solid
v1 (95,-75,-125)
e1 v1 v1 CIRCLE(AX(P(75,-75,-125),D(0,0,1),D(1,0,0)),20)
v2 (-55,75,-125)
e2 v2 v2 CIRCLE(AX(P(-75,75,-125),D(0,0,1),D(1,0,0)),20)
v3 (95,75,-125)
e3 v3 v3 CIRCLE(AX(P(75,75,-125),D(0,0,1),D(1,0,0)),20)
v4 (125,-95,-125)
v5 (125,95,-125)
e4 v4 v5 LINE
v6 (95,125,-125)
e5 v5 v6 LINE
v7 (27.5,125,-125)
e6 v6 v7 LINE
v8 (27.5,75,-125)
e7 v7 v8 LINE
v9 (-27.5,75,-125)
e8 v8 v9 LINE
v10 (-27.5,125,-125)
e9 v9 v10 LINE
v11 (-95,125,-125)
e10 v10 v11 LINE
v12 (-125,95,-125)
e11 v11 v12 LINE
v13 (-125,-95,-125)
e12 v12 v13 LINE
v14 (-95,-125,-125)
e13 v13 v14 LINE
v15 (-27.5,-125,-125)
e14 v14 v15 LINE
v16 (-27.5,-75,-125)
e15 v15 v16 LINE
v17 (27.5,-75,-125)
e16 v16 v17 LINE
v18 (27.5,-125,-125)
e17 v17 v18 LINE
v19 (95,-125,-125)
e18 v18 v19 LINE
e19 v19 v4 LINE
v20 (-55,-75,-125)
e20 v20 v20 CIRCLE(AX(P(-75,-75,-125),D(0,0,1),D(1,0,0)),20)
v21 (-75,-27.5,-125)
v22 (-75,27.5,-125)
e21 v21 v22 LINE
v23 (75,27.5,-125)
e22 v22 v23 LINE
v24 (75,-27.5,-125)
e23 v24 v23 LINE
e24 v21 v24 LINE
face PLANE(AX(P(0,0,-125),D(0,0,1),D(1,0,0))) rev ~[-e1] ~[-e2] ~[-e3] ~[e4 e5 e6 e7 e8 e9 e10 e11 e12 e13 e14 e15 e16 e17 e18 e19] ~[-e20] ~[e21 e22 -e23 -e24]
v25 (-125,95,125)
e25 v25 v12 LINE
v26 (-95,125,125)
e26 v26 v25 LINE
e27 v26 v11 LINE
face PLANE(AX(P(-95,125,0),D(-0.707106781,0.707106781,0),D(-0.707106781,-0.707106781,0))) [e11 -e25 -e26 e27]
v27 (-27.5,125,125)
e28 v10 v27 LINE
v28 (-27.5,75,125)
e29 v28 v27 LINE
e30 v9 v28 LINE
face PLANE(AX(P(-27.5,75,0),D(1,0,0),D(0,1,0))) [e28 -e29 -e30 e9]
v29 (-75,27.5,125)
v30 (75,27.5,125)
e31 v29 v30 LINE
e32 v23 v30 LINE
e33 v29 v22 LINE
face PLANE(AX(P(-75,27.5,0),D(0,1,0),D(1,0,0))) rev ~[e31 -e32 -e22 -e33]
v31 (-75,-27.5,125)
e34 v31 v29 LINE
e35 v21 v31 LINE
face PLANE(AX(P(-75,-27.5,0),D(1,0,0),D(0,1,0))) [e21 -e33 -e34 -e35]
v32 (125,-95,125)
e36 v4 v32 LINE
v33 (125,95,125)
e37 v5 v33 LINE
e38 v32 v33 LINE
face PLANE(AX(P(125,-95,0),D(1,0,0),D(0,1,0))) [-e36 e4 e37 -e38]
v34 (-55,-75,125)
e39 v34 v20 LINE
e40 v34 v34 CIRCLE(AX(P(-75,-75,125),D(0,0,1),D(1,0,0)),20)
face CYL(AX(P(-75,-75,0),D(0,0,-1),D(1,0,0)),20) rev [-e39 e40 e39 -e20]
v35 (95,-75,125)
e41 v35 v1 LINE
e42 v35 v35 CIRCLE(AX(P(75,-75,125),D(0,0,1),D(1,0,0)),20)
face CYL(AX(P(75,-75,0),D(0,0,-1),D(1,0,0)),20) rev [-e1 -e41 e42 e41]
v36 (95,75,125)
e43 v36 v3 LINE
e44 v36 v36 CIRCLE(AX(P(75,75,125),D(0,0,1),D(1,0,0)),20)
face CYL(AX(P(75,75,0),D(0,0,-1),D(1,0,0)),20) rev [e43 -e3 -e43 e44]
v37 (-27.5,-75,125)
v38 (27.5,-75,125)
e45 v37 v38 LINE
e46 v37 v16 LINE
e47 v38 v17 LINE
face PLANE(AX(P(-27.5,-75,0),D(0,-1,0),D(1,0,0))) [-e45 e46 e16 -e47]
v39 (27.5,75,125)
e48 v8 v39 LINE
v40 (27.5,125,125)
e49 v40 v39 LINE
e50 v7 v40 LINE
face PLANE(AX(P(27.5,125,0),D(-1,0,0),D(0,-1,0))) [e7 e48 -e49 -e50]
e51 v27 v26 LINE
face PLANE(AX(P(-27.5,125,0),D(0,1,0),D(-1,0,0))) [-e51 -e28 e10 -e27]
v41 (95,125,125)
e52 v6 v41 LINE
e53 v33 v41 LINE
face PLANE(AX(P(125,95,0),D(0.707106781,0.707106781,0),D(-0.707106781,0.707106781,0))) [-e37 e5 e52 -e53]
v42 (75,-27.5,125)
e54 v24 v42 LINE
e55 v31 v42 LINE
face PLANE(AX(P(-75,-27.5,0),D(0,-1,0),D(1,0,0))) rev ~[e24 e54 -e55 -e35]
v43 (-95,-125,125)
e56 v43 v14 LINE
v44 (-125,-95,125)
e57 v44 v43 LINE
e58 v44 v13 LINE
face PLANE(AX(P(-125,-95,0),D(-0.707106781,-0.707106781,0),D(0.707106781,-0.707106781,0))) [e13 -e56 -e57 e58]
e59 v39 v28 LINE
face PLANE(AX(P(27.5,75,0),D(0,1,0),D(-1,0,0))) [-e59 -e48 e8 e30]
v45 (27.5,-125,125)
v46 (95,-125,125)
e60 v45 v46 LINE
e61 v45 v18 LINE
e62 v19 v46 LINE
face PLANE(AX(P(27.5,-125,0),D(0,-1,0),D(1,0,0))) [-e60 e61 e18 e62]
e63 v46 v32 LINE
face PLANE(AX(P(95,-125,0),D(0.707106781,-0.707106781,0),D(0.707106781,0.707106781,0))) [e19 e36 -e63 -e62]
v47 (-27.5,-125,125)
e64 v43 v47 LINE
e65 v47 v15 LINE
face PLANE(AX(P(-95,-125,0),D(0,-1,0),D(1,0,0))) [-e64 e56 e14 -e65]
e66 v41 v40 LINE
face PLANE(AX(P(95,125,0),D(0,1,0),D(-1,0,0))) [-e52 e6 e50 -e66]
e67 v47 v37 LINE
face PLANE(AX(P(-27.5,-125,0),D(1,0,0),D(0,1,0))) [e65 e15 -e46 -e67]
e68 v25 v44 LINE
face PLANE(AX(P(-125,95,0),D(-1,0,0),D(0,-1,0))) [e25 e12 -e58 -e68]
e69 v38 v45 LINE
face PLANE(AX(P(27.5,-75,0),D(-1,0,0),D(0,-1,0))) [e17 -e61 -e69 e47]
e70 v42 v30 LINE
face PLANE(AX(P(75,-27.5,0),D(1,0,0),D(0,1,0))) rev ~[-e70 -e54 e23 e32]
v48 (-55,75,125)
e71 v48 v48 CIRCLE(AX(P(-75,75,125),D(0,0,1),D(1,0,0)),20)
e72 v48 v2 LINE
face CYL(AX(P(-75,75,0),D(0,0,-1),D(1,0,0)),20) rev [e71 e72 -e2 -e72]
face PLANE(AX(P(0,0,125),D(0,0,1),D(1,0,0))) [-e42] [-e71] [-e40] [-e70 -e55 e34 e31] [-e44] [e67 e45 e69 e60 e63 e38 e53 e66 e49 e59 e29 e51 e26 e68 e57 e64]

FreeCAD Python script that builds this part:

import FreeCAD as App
import Part
import Sketcher

V = App.Vector

doc = App.newDocument("Part")
body = doc.addObject("PartDesign::Body", "Body")

# Sketch on XY plane
sketch1 = body.newObject("Sketcher::SketchObject", "Sketch")
sketch1.AttachmentSupport = (doc.getObject("XY_Plane"), [""])
sketch1.MapMode = "FlatFace"
sketch1.addGeometry([
    Part.LineSegment(V(28, -125, 0), V(95, -125, 0)),  # 0
    Part.LineSegment(V(95, -125, 0), V(125, -95, 0)),  # 1
    Part.LineSegment(V(125, -95, 0), V(125, 95, 0)),  # 2
    Part.LineSegment(V(125, 95, 0), V(95, 125, 0)),  # 3
    Part.LineSegment(V(95, 125, 0), V(28, 125, 0)),  # 4
    Part.LineSegment(V(28, 125, 0), V(28, 75, 0)),  # 5
    Part.LineSegment(V(28, 75, 0), V(-28, 75, 0)),  # 6
    Part.LineSegment(V(-28, 75, 0), V(-28, 125, 0)),  # 7
    Part.LineSegment(V(-28, 125, 0), V(-95, 125, 0)),  # 8
    Part.LineSegment(V(-95, 125, 0), V(-125, 95, 0)),  # 9
    Part.LineSegment(V(-125, 95, 0), V(-125, -95, 0)),  # 10
    Part.LineSegment(V(-125, -95, 0), V(-95, -125, 0)),  # 11
    Part.LineSegment(V(-95, -125, 0), V(-28, -125, 0)),  # 12
    Part.LineSegment(V(-28, -125, 0), V(-28, -75, 0)),  # 13
    Part.LineSegment(V(-28, -75, 0), V(28, -75, 0)),  # 14
    Part.LineSegment(V(28, -75, 0), V(28, -125, 0)),  # 15
    Part.Circle(V(-75, -75, 0), V(0, 0, 1), 20),  # 16
    Part.Circle(V(75, -75, 0), V(0, 0, 1), 20),  # 17
    Part.Circle(V(-75, 75, 0), V(0, 0, 1), 20),  # 18
    Part.LineSegment(V(75, -28, 0), V(-75, -28, 0)),  # 19
    Part.LineSegment(V(-75, -28, 0), V(-75, 28, 0)),  # 20
    Part.LineSegment(V(-75, 28, 0), V(75, 28, 0)),  # 21
    Part.LineSegment(V(75, 28, 0), V(75, -28, 0)),  # 22
    Part.Circle(V(75, 75, 0), V(0, 0, 1), 20),  # 23
], False)
sketch1.addConstraint([
    Sketcher.Constraint("Coincident", 0, 2, 1, 1),
    Sketcher.Constraint("Coincident", 1, 2, 2, 1),
    Sketcher.Constraint("Coincident", 2, 2, 3, 1),
    Sketcher.Constraint("Coincident", 3, 2, 4, 1),
    Sketcher.Constraint("Coincident", 4, 2, 5, 1),
    Sketcher.Constraint("Coincident", 5, 2, 6, 1),
    Sketcher.Constraint("Coincident", 6, 2, 7, 1),
    Sketcher.Constraint("Coincident", 7, 2, 8, 1),
    Sketcher.Constraint("Coincident", 8, 2, 9, 1),
    Sketcher.Constraint("Coincident", 9, 2, 10, 1),
    Sketcher.Constraint("Coincident", 10, 2, 11, 1),
    Sketcher.Constraint("Coincident", 11, 2, 12, 1),
    Sketcher.Constraint("Coincident", 12, 2, 13, 1),
    Sketcher.Constraint("Coincident", 13, 2, 14, 1),
    Sketcher.Constraint("Coincident", 14, 2, 15, 1),
    Sketcher.Constraint("Coincident", 15, 2, 0, 1),
    Sketcher.Constraint("Coincident", 19, 2, 20, 1),
    Sketcher.Constraint("Coincident", 20, 2, 21, 1),
    Sketcher.Constraint("Coincident", 21, 2, 22, 1),
    Sketcher.Constraint("Coincident", 22, 2, 19, 1),
    Sketcher.Constraint("Horizontal", 0),
    Sketcher.Constraint("Vertical", 2),
    Sketcher.Constraint("Horizontal", 4),
    Sketcher.Constraint("Vertical", 5),
    Sketcher.Constraint("Horizontal", 6),
    Sketcher.Constraint("Vertical", 7),
    Sketcher.Constraint("Horizontal", 8),
    Sketcher.Constraint("Vertical", 10),
    Sketcher.Constraint("Horizontal", 12),
    Sketcher.Constraint("Vertical", 13),
    Sketcher.Constraint("Horizontal", 14),
    Sketcher.Constraint("Vertical", 15),
    Sketcher.Constraint("Horizontal", 19),
    Sketcher.Constraint("Vertical", 20),
    Sketcher.Constraint("Horizontal", 21),
    Sketcher.Constraint("Vertical", 22),
    Sketcher.Constraint("Equal", 16, 17),
    Sketcher.Constraint("Equal", 17, 18),
    Sketcher.Constraint("Equal", 18, 23),
    Sketcher.Constraint("Symmetric", 17, 3, 18, 3, -1, 1),
    Sketcher.Constraint("Symmetric", 16, 3, 23, 3, -1, 1),
    Sketcher.Constraint("Symmetric", 0, 2, 8, 2, -1, 1),
    Sketcher.Constraint("Symmetric", 1, 2, 9, 2, -1, 1),
    Sketcher.Constraint("Symmetric", 3, 2, 11, 2, -1, 1),
    Sketcher.Constraint("Symmetric", 5, 2, 13, 2, -1, 1),
    Sketcher.Constraint("Symmetric", 19, 2, 21, 2, -1, 1),
    Sketcher.Constraint("Symmetric", 16, 3, 17, 3, -2),
    Sketcher.Constraint("Symmetric", 4, 2, 7, 2, -2),
    Sketcher.Constraint("Perpendicular", 1, 3),
    Sketcher.Constraint("Perpendicular", 9, 11),
    Sketcher.Constraint("Horizontal", 23, 3, 5, 2),
    Sketcher.Constraint("Horizontal", 2, 2, 9, 2),
    Sketcher.Constraint("Vertical", 0, 2, 3, 2),
    Sketcher.Constraint("Vertical", 5, 2, 14, 2),
    Sketcher.Constraint("Vertical", 18, 3, 19, 2),
    Sketcher.Constraint("Equal", 14, 20),
    Sketcher.Constraint("Diameter", 16, 40.0),
    Sketcher.Constraint("DistanceX", 6, 2, 6, 1, 55.0),
    Sketcher.Constraint("DistanceX", 19, 2, 19, 1, 150.0),
    Sketcher.Constraint("DistanceY", 2, 1, 2, 2, 190.0),
    Sketcher.Constraint("DistanceY", 5, 2, 5, 1, 50.0),
    Sketcher.Constraint("DistanceX", 0, 1, 0, 2, 67.5),
    Sketcher.Constraint("DistanceY", 16, 3, -1, 1, 75.0),
])
pad1 = body.newObject("PartDesign::Pad", "Pad")
pad1.Profile = sketch1
pad1.Length = 250
pad1.Midplane = True

doc.recompute()
